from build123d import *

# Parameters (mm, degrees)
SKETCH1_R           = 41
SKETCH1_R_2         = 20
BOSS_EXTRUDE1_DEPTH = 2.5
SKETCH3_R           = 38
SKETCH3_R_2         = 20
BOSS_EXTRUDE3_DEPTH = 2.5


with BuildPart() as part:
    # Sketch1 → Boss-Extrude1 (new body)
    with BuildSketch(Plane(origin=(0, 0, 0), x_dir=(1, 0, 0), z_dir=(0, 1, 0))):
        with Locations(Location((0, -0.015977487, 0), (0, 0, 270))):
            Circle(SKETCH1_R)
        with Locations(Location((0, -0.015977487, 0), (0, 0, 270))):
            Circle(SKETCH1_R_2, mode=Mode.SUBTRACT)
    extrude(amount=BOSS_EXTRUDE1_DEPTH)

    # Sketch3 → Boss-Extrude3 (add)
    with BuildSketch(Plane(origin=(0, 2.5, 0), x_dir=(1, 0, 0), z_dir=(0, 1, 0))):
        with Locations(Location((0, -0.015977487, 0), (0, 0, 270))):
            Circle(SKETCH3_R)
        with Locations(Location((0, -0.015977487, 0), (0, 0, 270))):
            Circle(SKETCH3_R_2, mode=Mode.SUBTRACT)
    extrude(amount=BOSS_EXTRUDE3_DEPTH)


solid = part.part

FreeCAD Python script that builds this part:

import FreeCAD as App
import Part
import Sketcher

doc = App.newDocument("Part")
params = doc.addObject("Spreadsheet::Sheet", "Params")
for row, (alias, value) in enumerate([
    ("sketch1_diameter", "82 mm"),
    ("sketch1_diameter2", "40 mm"),
    ("pad1_length", "2.5 mm"),
    ("sketch2_diameter", "76 mm"),
    ("sketch2_diameter2", "40 mm"),
    ("pad2_length", "2.5 mm"),
], start=1):
    params.set(f"A{row}", alias)
    params.set(f"B{row}", "=" + value)
    params.setAlias(f"B{row}", alias)

body = doc.addObject("PartDesign::Body", "Body")

# Sketch on XZ plane
sketch1 = body.newObject("Sketcher::SketchObject", "Sketch")
sketch1.AttachmentSupport = (doc.getObject("XZ_Plane"), [""])
sketch1.MapMode = "FlatFace"
sketch1.addGeometry([
    Part.Circle(App.Vector(0, 0, 0), App.Vector(0, 0, 1), 41),
    Part.Circle(App.Vector(0, 0, 0), App.Vector(0, 0, 1), 20),
], False)
sketch1.addConstraint([
    Sketcher.Constraint("Coincident", 1, 3, 0, 3),
    Sketcher.Constraint("PointOnObject", 0, 3, -2),
    Sketcher.Constraint("Diameter", 0, 82.0),
    Sketcher.Constraint("Diameter", 1, 40.0),
    Sketcher.Constraint("DistanceY", -1, 1, 0, 3, 0.015977),
])
sketch1.setExpression("Constraints[2]", "Params.sketch1_diameter")
sketch1.setExpression("Constraints[3]", "Params.sketch1_diameter2")
pad1 = body.newObject("PartDesign::Pad", "Pad")
pad1.Profile = sketch1
pad1.setExpression("Length", "Params.pad1_length")
pad1.Reversed = True

# Sketch on XZ plane
sketch2 = body.newObject("Sketcher::SketchObject", "Sketch001")
sketch2.AttachmentSupport = (doc.getObject("XZ_Plane"), [""])
sketch2.MapMode = "FlatFace"
sketch2.AttachmentOffset = App.Placement(App.Vector(0, 0, -2.5), App.Rotation())
sketch2.addGeometry([
    Part.Circle(App.Vector(0, 0, 0), App.Vector(0, 0, 1), 38),
    Part.Circle(App.Vector(0, 0, 0), App.Vector(0, 0, 1), 20),
], False)
sketch2.addConstraint([
    Sketcher.Constraint("Coincident", 1, 3, 0, 3),
    Sketcher.Constraint("PointOnObject", 0, 3, -2),
    Sketcher.Constraint("Diameter", 0, 76.0),
    Sketcher.Constraint("Diameter", 1, 40.0),
    Sketcher.Constraint("DistanceY", -1, 1, 0, 3, 0.015977),
])
sketch2.setExpression("Constraints[2]", "Params.sketch2_diameter")
sketch2.setExpression("Constraints[3]", "Params.sketch2_diameter2")
pad2 = body.newObject("PartDesign::Pad", "Pad001")
pad2.Profile = sketch2
pad2.setExpression("Length", "Params.pad2_length")
pad2.Reversed = True

doc.recompute()
